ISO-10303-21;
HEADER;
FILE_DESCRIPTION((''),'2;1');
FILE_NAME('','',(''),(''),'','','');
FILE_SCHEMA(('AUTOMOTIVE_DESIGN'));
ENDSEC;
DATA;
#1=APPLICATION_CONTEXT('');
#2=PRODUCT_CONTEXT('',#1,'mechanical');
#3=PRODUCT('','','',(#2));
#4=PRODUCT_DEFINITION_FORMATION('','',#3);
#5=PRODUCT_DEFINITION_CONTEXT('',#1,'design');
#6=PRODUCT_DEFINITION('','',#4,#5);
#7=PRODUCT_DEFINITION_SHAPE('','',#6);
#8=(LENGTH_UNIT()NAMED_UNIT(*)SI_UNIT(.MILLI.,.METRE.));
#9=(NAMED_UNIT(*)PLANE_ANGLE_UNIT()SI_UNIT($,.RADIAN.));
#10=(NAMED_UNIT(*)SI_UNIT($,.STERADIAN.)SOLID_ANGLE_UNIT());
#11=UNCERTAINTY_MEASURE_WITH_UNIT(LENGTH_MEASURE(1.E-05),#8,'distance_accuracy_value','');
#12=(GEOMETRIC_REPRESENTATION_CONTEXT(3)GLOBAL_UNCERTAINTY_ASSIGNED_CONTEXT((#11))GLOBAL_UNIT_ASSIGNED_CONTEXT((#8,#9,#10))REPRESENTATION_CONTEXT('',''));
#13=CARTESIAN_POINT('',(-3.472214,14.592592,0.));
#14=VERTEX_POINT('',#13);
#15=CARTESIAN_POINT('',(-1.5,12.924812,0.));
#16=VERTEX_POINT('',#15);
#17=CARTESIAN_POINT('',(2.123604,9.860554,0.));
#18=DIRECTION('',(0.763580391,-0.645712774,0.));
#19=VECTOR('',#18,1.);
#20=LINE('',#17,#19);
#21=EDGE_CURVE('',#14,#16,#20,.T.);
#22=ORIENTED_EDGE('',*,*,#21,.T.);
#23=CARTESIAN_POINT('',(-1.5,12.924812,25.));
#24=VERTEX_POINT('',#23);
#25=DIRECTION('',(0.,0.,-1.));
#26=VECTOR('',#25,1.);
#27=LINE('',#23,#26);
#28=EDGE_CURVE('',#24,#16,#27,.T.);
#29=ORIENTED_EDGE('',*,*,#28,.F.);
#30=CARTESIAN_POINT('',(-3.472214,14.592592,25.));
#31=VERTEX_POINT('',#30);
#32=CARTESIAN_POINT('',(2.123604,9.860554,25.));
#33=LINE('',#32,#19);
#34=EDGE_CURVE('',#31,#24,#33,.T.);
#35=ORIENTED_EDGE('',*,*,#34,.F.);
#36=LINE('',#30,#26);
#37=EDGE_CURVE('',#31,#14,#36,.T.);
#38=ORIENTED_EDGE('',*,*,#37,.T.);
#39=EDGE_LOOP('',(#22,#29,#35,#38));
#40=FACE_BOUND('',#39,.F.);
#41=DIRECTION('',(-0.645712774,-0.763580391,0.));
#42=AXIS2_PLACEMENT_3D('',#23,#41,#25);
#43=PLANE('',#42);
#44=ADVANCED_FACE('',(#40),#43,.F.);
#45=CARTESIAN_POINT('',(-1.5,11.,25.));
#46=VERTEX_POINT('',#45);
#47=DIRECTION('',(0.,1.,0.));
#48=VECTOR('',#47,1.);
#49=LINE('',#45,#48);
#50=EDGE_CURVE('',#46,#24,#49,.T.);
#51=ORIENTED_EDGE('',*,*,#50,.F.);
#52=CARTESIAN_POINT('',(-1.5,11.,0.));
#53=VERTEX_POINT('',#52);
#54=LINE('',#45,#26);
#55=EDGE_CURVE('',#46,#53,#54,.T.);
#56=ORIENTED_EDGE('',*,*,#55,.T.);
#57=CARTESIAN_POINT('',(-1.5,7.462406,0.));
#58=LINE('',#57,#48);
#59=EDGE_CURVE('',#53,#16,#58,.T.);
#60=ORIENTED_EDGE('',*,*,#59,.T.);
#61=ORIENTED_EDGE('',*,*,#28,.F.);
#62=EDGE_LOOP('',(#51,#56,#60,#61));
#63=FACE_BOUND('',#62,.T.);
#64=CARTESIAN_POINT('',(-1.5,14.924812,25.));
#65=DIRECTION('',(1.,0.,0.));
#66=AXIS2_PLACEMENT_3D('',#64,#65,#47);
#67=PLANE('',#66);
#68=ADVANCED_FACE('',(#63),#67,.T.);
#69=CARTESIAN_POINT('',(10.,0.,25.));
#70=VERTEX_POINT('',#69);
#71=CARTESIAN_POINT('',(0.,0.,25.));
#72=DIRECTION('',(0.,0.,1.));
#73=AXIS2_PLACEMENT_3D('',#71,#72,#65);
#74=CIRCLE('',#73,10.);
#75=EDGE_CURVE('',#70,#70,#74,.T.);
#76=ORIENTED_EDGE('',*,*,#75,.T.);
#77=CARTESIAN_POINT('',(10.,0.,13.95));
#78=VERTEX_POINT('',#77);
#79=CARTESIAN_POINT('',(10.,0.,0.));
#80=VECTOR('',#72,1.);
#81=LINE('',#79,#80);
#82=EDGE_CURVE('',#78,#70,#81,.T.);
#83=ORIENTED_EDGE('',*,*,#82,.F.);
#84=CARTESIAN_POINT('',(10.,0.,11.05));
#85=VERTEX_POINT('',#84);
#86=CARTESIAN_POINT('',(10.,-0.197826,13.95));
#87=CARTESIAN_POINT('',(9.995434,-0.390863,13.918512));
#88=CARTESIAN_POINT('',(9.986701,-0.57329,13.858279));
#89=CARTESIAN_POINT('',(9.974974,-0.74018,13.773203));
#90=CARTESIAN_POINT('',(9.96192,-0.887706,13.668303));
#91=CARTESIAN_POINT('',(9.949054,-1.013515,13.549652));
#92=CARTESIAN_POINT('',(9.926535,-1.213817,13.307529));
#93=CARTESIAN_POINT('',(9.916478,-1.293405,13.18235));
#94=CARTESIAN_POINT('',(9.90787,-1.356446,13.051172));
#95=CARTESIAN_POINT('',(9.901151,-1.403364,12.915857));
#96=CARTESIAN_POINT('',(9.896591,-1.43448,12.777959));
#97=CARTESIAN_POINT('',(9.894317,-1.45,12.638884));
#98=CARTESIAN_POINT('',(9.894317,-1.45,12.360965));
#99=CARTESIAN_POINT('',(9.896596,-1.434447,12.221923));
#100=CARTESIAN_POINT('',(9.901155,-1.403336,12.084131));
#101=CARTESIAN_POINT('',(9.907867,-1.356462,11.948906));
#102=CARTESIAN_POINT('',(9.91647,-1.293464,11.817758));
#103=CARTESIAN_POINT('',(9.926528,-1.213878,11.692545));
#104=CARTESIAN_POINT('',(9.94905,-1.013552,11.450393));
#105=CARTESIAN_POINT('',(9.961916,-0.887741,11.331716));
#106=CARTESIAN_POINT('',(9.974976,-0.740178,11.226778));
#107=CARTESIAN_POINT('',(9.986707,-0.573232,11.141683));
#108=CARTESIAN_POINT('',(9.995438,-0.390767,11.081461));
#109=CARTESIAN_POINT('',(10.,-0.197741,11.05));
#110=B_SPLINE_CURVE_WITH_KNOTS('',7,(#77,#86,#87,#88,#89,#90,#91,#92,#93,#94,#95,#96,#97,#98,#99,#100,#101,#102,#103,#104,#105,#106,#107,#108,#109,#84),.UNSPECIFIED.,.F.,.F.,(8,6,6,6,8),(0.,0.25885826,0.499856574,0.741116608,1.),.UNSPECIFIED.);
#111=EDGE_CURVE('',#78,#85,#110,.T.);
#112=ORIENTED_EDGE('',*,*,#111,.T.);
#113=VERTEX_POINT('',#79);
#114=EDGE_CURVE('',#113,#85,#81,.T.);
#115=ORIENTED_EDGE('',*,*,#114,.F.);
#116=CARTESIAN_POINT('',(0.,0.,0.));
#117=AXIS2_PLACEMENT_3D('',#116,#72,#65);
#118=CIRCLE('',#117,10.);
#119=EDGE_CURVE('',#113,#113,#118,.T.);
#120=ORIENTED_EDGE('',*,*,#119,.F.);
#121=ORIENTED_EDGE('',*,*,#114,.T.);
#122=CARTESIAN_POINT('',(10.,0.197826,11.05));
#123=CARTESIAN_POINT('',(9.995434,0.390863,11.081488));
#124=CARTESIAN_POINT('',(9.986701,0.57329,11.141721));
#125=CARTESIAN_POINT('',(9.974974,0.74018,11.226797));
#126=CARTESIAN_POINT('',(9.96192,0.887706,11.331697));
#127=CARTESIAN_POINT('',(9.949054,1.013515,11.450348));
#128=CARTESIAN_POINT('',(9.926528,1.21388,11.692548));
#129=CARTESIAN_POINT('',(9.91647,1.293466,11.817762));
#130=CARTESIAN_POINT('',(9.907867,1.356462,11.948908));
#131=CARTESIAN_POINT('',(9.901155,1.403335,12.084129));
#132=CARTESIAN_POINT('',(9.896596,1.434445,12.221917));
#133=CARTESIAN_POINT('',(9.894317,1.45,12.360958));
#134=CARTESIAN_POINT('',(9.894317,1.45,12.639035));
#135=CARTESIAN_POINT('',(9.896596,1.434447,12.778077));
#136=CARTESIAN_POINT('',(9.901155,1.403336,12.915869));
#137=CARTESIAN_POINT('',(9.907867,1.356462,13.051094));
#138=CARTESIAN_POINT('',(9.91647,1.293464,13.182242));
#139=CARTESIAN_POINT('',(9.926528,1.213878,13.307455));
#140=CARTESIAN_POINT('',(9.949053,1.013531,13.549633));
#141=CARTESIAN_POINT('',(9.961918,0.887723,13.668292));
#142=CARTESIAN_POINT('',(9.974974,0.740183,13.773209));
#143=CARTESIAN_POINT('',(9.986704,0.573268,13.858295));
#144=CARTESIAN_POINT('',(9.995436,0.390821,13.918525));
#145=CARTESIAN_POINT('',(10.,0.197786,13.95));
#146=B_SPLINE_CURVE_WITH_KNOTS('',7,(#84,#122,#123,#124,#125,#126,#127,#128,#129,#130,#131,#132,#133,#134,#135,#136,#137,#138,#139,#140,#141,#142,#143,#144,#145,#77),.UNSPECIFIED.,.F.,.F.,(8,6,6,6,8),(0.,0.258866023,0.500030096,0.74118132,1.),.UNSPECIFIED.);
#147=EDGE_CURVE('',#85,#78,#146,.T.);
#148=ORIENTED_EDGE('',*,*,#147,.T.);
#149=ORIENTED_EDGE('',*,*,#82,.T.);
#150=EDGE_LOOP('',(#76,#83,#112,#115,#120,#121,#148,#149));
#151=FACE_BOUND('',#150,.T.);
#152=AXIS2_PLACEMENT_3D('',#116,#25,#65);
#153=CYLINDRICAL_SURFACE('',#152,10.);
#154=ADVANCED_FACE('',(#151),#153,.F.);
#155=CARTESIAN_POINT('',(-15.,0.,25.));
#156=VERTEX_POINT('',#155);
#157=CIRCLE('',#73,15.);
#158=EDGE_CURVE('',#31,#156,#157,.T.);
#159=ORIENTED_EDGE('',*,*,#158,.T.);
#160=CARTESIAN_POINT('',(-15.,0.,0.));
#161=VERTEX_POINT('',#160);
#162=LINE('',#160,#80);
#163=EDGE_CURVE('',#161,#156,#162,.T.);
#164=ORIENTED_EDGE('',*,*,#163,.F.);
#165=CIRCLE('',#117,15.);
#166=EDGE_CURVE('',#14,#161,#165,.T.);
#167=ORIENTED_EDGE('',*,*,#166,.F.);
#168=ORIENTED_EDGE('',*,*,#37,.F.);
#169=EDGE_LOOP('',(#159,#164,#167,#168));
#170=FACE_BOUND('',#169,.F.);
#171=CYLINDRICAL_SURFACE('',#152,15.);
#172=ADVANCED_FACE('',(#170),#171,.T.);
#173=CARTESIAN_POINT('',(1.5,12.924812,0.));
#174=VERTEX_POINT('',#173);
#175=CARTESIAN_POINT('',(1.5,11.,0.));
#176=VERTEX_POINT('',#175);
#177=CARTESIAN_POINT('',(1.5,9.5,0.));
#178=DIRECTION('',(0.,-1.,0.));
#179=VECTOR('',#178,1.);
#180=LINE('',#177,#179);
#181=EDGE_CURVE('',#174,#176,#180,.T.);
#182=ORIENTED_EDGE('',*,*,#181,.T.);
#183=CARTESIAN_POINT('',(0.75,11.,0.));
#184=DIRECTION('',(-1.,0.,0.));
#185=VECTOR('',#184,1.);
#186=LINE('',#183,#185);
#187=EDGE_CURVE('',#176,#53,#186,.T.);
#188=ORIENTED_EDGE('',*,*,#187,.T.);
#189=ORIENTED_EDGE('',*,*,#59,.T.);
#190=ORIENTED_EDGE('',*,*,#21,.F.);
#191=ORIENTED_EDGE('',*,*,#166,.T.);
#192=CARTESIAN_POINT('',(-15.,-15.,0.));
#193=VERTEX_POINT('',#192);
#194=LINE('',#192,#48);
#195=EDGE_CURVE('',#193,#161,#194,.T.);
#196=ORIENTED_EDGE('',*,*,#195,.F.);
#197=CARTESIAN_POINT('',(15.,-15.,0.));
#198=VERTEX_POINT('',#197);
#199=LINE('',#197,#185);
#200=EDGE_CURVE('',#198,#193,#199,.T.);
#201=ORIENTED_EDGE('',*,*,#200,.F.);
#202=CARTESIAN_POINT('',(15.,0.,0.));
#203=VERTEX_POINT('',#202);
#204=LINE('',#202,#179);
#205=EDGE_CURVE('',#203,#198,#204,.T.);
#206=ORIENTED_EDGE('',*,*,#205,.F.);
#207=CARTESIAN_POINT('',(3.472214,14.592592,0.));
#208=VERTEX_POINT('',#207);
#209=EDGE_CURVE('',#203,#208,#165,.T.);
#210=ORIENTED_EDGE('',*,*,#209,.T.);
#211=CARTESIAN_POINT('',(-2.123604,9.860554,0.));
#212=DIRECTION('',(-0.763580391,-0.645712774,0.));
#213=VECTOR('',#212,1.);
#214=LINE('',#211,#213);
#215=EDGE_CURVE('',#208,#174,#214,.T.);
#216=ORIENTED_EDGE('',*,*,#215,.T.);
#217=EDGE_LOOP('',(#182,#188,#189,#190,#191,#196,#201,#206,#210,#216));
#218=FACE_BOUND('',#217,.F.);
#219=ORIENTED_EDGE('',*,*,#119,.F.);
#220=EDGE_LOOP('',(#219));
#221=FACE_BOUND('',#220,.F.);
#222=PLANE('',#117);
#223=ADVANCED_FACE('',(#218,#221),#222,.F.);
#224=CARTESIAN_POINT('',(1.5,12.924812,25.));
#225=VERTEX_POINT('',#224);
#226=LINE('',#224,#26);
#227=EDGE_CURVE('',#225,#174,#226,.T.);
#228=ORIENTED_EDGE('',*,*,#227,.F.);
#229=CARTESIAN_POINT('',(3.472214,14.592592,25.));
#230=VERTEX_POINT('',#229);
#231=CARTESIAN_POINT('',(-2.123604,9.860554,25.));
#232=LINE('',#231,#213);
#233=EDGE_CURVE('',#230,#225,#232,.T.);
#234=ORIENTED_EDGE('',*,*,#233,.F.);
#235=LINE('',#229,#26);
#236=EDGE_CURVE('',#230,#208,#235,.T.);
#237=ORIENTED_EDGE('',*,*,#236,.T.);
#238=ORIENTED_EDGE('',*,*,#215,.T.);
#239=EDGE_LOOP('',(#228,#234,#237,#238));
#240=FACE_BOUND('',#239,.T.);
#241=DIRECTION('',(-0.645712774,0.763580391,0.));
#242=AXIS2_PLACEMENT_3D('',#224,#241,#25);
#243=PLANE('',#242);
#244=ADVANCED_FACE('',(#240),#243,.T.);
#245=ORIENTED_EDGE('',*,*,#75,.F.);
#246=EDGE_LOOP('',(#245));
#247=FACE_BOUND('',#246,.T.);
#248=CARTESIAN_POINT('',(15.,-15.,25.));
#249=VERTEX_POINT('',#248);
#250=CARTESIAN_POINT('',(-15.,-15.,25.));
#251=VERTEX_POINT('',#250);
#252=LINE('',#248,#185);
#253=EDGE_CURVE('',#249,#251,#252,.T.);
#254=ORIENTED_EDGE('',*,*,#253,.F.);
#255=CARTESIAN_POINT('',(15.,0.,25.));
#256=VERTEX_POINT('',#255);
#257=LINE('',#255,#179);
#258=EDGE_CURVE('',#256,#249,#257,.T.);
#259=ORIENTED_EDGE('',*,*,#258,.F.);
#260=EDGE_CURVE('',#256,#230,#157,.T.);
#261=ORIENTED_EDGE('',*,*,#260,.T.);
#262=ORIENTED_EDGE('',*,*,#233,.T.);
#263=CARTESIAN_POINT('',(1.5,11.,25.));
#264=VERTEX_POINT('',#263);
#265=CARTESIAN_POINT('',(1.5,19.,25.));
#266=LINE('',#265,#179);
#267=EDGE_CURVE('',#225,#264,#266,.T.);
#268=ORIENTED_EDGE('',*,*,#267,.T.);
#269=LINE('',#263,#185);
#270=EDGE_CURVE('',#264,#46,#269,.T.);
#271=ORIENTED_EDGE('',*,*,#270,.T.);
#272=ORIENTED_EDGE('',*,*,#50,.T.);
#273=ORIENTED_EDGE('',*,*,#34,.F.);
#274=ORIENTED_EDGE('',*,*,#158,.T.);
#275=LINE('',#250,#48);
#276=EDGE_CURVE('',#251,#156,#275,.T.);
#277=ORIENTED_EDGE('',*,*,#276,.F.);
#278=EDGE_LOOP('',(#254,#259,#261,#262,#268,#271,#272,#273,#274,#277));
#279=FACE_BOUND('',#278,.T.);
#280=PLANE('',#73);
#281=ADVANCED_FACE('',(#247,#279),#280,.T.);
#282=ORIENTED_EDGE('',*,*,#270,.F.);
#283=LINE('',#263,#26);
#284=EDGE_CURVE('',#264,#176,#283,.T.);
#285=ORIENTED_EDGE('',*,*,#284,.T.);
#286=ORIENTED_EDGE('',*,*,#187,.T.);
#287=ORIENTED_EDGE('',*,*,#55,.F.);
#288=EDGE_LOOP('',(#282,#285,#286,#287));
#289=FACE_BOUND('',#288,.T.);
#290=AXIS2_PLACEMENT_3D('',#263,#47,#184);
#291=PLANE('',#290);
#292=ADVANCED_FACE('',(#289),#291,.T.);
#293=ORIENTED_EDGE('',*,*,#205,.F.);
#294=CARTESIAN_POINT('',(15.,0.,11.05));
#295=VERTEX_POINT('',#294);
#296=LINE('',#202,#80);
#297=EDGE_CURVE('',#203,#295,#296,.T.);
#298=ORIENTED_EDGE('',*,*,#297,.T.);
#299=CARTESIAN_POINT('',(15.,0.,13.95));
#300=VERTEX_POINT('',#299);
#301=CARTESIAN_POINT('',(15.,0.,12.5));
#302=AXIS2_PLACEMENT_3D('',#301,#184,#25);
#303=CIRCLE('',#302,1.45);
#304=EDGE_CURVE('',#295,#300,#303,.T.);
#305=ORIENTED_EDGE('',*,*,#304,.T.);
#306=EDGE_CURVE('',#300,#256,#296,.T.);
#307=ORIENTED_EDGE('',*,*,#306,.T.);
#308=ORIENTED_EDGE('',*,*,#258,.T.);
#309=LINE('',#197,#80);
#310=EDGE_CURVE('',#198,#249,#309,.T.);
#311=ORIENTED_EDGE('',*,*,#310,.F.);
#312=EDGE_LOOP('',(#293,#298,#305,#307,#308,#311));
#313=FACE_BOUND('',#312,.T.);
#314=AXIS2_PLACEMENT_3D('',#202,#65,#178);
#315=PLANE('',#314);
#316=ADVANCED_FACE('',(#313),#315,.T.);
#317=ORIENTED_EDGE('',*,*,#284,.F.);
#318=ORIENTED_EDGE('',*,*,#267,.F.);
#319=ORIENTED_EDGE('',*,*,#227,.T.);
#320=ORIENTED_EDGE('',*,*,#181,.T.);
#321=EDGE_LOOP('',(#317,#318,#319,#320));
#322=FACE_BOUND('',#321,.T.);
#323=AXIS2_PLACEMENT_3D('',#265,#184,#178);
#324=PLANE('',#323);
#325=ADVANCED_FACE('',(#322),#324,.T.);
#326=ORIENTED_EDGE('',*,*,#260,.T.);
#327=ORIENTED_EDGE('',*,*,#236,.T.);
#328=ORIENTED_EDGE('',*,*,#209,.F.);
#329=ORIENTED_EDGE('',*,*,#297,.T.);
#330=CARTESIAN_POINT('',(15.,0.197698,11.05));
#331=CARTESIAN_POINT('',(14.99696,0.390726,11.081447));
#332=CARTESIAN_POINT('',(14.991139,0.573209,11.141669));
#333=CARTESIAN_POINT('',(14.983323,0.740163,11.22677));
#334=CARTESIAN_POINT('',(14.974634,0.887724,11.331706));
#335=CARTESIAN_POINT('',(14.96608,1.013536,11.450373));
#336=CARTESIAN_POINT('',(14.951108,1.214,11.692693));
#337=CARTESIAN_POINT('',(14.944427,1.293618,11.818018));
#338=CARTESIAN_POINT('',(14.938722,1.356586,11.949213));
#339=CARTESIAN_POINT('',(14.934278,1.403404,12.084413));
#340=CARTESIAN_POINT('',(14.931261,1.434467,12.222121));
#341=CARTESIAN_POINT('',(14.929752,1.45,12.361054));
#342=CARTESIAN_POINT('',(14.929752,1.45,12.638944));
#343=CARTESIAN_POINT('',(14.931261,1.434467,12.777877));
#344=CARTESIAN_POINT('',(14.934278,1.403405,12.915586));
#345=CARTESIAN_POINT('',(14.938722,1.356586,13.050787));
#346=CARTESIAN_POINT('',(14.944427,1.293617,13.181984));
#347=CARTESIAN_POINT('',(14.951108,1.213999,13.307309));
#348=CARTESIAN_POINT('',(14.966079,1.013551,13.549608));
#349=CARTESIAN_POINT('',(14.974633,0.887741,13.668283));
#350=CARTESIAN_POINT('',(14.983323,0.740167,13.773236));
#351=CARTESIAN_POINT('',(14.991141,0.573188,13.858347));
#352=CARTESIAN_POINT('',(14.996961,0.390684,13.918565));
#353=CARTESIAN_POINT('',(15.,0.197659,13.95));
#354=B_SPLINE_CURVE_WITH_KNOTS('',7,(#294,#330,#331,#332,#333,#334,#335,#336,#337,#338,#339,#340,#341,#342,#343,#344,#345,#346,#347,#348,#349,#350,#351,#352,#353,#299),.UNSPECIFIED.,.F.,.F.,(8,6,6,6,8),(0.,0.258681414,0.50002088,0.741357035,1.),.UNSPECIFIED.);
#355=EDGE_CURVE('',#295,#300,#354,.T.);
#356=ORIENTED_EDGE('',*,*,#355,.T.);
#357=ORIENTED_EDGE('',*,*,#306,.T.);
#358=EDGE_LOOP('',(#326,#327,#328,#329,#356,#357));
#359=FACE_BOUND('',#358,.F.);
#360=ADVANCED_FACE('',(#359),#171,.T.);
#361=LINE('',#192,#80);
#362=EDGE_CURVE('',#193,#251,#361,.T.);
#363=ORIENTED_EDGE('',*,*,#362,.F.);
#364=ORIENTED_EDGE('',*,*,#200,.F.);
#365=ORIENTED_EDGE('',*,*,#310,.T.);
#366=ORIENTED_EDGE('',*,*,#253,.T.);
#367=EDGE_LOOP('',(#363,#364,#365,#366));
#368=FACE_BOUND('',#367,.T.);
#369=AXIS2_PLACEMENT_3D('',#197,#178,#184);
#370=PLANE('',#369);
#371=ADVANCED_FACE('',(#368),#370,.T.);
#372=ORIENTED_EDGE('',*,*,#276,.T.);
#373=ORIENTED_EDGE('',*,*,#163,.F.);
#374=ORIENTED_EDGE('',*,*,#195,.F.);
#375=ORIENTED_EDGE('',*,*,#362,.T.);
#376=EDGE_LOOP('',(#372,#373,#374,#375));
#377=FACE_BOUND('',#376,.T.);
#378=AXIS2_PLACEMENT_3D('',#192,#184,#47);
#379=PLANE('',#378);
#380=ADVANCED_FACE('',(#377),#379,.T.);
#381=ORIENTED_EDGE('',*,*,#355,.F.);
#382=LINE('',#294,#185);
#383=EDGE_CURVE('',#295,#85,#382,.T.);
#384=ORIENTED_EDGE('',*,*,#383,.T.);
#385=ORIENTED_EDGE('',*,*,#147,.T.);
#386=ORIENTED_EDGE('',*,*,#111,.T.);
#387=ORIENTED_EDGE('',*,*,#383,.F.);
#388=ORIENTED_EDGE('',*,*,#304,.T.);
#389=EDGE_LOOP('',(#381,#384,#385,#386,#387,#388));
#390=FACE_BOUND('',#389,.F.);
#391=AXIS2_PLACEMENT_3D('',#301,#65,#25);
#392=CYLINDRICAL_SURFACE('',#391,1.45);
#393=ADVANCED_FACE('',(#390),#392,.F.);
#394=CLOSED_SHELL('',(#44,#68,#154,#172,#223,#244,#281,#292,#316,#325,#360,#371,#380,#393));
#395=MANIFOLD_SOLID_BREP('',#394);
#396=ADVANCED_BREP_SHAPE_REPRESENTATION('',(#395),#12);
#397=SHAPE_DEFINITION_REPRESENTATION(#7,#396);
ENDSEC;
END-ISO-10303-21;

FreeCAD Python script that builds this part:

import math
import FreeCAD as App
import Part
import Sketcher
from FreeCAD import Vector
Q = App.Units.Quantity


def edges_at(feature, points):
    """Names of the edges that pass closest to the given points."""
    edges = feature.Shape.Edges
    near = lambda p: min(range(len(edges)), key=lambda i: edges[i].distToShape(Part.Vertex(*p))[0])
    return sorted({f"Edge{near(p) + 1}" for p in points})

doc = App.newDocument("Part")
params = doc.addObject("Spreadsheet::Sheet", "Params")
for row, (alias, value) in enumerate([
    ("sketch1_diameter", "20 mm"),
    ("sketch1_radius", "15 mm"),
    ("sketch1_height", "15 mm"),
    ("pad1_length", "25 mm"),
    ("sketch2_width", "3 mm"),
    ("sketch2_height", "8 mm"),
    ("chamfer_size", "2 mm"),
    ("sketch3_diameter", "2.9 mm"),
    ("pocket2_length", "6 mm"),
], start=1):
    params.set(f"A{row}", alias)
    params.set(f"B{row}", "=" + value)
    params.setAlias(f"B{row}", alias)

body = doc.addObject("PartDesign::Body", "Body")

# Sketch on XY plane
sketch1 = doc.addObject("Sketcher::SketchObject", "Sketch")
body.addObject(sketch1)
sketch1.AttachmentSupport = (doc.XY_Plane, [""])
sketch1.MapMode = "FlatFace"
sketch1.addGeometry([
    Part.LineSegment(Vector(15, -15, 0), Vector(15, 0, 0)),  # 0
    Part.ArcOfCircle(Part.Circle(Vector(0, 0, 0), Vector(0, 0, 1), 15), math.radians(0), math.radians(180)),  # 1
    Part.LineSegment(Vector(-15, 0, 0), Vector(-15, -15, 0)),  # 2
    Part.LineSegment(Vector(-15, -15, 0), Vector(15, -15, 0)),  # 3
    Part.Circle(Vector(0, 0, 0), Vector(0, 0, 1), 10),  # 4
], False)
sketch1.addConstraint([
    Sketcher.Constraint("Tangent", 0, 2, 1, 1),
    Sketcher.Constraint("Tangent", 1, 2, 2, 1),
    Sketcher.Constraint("Coincident", 2, 2, 3, 1),
    Sketcher.Constraint("Coincident", 3, 2, 0, 1),
    Sketcher.Constraint("Vertical", 0),
    Sketcher.Constraint("Vertical", 2),
    Sketcher.Constraint("Horizontal", 3),
    Sketcher.Constraint("Coincident", 1, 3, -1, 1),
    Sketcher.Constraint("Coincident", 4, 3, -1, 1),
    Sketcher.Constraint("Diameter", 4, Q("20 mm")),
    Sketcher.Constraint("Radius", 1, Q("15 mm")),
    Sketcher.Constraint("DistanceY", 0, 1, 0, 2, Q("15 mm")),
])
sketch1.setExpression("Constraints[9]", "Params.sketch1_diameter")
sketch1.setExpression("Constraints[10]", "Params.sketch1_radius")
sketch1.setExpression("Constraints[11]", "Params.sketch1_height")
pad1 = doc.addObject("PartDesign::Pad", "Pad")
body.addObject(pad1)
pad1.Profile = sketch1
pad1.setExpression("Length", "Params.pad1_length")

# Sketch on XY plane
sketch2 = doc.addObject("Sketcher::SketchObject", "Sketch001")
body.addObject(sketch2)
sketch2.AttachmentSupport = (doc.XY_Plane, [""])
sketch2.MapMode = "FlatFace"
sketch2.AttachmentOffset = App.Placement(Vector(0, 0, 25), App.Rotation())
sketch2.addGeometry([
    Part.LineSegment(Vector(1.5, 19, 0), Vector(-1.5, 19, 0)),
    Part.LineSegment(Vector(-1.5, 19, 0), Vector(-1.5, 11, 0)),
    Part.LineSegment(Vector(-1.5, 11, 0), Vector(1.5, 11, 0)),
    Part.LineSegment(Vector(1.5, 11, 0), Vector(1.5, 19, 0)),
], False)
sketch2.addConstraint([
    Sketcher.Constraint("Coincident", 0, 2, 1, 1),
    Sketcher.Constraint("Coincident", 1, 2, 2, 1),
    Sketcher.Constraint("Coincident", 2, 2, 3, 1),
    Sketcher.Constraint("Coincident", 3, 2, 0, 1),
    Sketcher.Constraint("Horizontal", 0),
    Sketcher.Constraint("Vertical", 1),
    Sketcher.Constraint("Horizontal", 2),
    Sketcher.Constraint("Vertical", 3),
    Sketcher.Constraint("DistanceX", 0, 2, 0, 1, Q("3 mm")),
    Sketcher.Constraint("DistanceY", 1, 2, 1, 1, Q("8 mm")),
    Sketcher.Constraint("DistanceY", -1, 1, 0, 2, Q("19 mm")),
    Sketcher.Constraint("DistanceX", 0, 2, -1, 1, Q("1.5 mm")),
])
sketch2.setExpression("Constraints[8]", "Params.sketch2_width")
sketch2.setExpression("Constraints[9]", "Params.sketch2_height")
pocket1 = doc.addObject("PartDesign::Pocket", "Pocket")
body.addObject(pocket1)
pocket1.Profile = sketch2
pocket1.Type = "ThroughAll"
doc.recompute()

chamfer = doc.addObject("PartDesign::Chamfer", "Chamfer")
body.addObject(chamfer)
chamfer.Base = (pocket1, edges_at(pocket1, [(-1.5, 14.925, 12.5), (1.5, 14.925, 12.5)]))
chamfer.setExpression("Size", "Params.chamfer_size")

# Sketch on YZ plane
sketch3 = doc.addObject("Sketcher::SketchObject", "Sketch002")
body.addObject(sketch3)
sketch3.AttachmentSupport = (doc.YZ_Plane, [""])
sketch3.MapMode = "FlatFace"
sketch3.AttachmentOffset = App.Placement(Vector(0, 0, 15), App.Rotation())
sketch3.addGeometry(Part.Circle(Vector(0, 12.5, 0), Vector(0, 0, 1), 1.4), False)
sketch3.addConstraint([
    Sketcher.Constraint("PointOnObject", 0, 3, -2),
    Sketcher.Constraint("Diameter", 0, Q("2.9 mm")),
    Sketcher.Constraint("DistanceY", -1, 1, 0, 3, Q("12.5 mm")),
])
sketch3.setExpression("Constraints[1]", "Params.sketch3_diameter")
pocket2 = doc.addObject("PartDesign::Pocket", "Pocket001")
body.addObject(pocket2)
pocket2.Profile = sketch3
pocket2.setExpression("Length", "Params.pocket2_length")

doc.recompute()
